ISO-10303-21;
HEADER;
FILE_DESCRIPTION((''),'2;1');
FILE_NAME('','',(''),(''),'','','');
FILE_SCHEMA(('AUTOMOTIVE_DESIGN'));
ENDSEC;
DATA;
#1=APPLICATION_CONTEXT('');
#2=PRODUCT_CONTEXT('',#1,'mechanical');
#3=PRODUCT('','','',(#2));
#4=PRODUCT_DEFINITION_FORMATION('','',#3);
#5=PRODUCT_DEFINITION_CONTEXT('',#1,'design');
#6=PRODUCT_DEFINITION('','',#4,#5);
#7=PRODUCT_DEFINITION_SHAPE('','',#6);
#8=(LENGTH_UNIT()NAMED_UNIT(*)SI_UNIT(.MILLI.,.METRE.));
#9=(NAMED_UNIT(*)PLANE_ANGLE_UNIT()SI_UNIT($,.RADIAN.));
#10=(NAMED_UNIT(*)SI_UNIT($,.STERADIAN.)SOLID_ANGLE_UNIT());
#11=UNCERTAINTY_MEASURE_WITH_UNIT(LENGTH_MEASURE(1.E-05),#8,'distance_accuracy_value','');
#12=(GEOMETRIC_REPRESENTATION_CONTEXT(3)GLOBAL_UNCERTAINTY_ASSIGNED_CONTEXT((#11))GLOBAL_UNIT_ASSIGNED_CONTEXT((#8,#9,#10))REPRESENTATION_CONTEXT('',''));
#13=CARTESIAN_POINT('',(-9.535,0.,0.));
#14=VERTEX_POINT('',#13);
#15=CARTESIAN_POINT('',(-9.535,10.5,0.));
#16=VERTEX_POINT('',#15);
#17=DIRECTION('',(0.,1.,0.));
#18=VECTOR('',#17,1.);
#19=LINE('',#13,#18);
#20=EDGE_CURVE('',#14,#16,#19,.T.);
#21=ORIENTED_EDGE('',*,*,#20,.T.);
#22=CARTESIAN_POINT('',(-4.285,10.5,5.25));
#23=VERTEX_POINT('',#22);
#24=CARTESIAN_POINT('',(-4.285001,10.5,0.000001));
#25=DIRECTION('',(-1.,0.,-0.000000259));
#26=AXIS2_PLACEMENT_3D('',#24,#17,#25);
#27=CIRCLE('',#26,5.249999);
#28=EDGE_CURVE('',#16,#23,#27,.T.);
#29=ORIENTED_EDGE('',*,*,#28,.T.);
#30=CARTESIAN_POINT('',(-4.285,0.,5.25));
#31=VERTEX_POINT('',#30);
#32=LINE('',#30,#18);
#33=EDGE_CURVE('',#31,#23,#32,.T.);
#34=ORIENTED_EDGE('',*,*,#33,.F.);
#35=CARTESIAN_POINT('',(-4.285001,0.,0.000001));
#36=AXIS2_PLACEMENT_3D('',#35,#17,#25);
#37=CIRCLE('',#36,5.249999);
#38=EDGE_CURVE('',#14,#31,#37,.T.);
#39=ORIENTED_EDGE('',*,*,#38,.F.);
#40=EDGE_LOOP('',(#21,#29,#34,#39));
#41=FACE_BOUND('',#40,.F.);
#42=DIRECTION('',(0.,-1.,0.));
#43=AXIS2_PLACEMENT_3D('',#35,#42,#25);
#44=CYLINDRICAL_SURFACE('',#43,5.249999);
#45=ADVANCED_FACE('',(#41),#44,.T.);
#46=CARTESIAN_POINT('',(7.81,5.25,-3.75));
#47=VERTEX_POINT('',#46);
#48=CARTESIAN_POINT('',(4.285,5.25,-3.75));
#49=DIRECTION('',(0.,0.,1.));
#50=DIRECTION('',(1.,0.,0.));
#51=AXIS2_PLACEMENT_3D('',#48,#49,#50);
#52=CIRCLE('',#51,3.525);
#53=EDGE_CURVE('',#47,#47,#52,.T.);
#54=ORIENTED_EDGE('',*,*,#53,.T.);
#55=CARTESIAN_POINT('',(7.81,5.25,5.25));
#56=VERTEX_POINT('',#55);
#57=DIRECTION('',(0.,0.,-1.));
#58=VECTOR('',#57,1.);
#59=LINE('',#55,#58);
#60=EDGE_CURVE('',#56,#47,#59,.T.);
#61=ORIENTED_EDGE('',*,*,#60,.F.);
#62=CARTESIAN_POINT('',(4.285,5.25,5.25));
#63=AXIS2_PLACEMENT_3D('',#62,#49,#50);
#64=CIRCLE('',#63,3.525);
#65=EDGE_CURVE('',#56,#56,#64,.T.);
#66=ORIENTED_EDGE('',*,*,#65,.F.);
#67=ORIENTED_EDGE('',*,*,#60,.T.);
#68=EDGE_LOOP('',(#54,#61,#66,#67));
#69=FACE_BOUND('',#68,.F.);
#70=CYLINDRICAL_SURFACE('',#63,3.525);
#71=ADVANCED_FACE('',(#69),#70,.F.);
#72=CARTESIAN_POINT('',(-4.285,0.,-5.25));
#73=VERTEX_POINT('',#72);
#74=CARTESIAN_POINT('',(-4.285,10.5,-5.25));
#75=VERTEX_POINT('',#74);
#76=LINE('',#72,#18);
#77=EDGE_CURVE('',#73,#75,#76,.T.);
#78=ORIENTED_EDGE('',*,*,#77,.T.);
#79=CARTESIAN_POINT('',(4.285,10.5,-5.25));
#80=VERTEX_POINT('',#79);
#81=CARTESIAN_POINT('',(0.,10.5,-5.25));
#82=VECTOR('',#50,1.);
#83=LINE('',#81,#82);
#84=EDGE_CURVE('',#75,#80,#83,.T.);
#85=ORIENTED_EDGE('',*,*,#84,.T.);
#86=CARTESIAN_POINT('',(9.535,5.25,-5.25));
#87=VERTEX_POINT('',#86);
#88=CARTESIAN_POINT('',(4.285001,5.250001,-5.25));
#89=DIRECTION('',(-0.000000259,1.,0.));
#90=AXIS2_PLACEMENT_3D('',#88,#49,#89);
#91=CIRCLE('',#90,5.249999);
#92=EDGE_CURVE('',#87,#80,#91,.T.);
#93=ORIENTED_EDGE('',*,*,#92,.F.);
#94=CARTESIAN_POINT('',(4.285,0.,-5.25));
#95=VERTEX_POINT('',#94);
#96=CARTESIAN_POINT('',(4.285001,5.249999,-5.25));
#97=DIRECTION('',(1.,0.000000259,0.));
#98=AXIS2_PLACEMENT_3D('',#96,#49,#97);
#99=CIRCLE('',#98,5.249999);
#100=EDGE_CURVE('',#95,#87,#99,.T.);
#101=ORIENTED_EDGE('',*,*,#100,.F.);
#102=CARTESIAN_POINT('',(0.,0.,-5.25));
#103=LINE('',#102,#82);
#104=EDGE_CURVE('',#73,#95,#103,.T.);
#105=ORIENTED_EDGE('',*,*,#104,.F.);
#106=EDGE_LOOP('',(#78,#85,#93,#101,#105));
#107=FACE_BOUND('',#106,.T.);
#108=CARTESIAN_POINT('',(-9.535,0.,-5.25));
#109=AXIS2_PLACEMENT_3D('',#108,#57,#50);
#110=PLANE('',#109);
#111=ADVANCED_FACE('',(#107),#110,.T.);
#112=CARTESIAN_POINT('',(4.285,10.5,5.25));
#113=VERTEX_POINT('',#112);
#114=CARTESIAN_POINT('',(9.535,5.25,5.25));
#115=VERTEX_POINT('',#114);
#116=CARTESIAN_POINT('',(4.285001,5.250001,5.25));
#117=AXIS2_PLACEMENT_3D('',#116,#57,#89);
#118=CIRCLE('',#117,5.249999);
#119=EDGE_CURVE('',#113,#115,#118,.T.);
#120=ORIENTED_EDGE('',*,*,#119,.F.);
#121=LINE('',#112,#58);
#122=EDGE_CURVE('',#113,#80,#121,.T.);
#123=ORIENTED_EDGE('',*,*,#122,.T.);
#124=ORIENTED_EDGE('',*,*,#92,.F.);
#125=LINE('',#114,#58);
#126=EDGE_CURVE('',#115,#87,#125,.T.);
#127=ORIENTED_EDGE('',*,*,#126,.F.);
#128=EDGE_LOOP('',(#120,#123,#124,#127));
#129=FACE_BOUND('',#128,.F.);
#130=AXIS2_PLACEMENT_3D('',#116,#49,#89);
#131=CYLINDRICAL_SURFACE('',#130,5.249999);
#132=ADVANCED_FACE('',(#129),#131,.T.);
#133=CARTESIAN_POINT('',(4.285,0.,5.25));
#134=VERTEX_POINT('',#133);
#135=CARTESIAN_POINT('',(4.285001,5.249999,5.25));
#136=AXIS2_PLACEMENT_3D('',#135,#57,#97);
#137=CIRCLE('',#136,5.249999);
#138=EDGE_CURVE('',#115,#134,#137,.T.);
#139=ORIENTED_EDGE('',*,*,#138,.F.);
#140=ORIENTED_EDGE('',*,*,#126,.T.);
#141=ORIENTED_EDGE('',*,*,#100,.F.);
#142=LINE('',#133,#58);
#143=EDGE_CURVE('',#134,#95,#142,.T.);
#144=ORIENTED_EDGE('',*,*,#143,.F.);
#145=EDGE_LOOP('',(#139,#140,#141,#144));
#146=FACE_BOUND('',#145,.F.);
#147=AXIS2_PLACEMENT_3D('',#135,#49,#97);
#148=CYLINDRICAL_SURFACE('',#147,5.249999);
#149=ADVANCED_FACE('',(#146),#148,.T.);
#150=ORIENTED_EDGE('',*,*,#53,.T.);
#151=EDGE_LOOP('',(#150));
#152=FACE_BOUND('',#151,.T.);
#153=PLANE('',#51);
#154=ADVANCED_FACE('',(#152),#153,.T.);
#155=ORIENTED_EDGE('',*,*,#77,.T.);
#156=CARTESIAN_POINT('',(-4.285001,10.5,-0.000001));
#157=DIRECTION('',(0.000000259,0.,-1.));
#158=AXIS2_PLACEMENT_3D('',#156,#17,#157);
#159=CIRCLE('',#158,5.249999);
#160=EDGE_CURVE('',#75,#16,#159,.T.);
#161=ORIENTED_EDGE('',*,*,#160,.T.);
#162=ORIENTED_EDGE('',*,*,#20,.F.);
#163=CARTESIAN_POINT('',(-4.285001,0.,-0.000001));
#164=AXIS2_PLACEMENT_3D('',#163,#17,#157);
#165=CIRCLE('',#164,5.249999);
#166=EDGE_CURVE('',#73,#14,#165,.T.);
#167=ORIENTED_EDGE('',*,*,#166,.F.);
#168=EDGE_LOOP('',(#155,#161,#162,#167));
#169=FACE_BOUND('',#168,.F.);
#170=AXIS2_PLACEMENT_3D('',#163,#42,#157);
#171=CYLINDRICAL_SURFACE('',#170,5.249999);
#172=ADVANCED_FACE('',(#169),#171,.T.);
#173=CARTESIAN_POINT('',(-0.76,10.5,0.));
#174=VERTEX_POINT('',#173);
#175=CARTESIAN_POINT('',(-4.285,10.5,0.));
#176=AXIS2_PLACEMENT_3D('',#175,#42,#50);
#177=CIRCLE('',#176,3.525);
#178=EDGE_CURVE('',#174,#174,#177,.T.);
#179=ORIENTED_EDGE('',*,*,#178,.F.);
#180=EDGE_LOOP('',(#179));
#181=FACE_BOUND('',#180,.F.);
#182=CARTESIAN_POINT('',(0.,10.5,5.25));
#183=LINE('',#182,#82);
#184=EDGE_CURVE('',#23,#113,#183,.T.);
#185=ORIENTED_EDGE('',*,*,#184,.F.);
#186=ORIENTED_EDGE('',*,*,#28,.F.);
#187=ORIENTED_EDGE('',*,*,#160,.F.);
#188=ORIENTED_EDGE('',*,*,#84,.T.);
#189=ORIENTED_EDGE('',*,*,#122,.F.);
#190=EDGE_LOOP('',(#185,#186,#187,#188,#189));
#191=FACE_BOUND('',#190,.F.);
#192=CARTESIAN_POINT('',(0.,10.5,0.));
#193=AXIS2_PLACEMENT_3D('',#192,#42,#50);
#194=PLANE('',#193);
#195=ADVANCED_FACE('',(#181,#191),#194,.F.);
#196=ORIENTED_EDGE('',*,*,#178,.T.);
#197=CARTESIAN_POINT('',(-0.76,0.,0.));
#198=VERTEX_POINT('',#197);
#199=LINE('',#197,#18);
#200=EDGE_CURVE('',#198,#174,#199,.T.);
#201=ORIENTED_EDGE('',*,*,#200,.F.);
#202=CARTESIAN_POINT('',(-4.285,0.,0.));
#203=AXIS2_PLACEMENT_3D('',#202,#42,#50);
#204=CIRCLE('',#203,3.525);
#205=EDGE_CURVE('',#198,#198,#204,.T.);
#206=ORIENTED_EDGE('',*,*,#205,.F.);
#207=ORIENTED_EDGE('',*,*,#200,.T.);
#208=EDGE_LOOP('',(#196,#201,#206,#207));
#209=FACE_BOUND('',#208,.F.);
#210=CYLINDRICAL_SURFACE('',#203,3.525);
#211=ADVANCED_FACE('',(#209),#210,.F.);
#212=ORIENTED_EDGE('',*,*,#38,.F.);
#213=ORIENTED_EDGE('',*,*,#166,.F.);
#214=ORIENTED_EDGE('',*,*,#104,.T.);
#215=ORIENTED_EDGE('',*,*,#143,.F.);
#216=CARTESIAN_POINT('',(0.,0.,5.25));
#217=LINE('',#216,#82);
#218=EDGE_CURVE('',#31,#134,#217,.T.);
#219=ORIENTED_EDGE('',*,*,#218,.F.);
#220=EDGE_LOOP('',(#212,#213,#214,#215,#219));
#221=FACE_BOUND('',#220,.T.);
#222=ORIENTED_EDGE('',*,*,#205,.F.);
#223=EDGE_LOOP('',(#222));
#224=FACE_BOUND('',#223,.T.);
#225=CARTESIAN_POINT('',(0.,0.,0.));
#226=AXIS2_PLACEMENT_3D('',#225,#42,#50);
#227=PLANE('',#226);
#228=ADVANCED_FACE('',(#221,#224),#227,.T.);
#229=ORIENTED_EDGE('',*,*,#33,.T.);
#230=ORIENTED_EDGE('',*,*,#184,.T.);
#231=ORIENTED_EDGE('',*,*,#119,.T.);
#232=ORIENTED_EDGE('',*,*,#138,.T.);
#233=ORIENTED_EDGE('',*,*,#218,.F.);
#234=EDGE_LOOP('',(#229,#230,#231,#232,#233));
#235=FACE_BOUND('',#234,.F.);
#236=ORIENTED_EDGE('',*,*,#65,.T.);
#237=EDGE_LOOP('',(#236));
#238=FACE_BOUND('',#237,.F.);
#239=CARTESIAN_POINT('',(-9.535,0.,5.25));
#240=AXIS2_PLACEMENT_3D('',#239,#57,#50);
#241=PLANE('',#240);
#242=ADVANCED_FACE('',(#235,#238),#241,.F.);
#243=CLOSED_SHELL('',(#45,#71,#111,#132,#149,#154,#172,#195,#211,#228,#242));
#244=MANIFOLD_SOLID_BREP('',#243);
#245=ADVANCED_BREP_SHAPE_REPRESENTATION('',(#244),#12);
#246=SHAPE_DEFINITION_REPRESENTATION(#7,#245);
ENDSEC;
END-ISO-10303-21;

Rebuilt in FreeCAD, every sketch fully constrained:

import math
import FreeCAD as App
import Part
import Sketcher

doc = App.newDocument("Part")
body = doc.addObject("PartDesign::Body", "Body")

sketch1 = doc.addObject("Sketcher::SketchObject", "Sketch")
body.addObject(sketch1)
sketch1.AttachmentSupport = (doc.XZ_Plane, [""])
sketch1.MapMode = "FlatFace"
sketch1.addGeometry([
    Part.LineSegment(App.Vector(-10, 5, 0), App.Vector(-10, -5, 0)),
    Part.LineSegment(App.Vector(-10, -5, 0), App.Vector(10, -5, 0)),
    Part.LineSegment(App.Vector(10, -5, 0), App.Vector(10, 5, 0)),
    Part.LineSegment(App.Vector(10, 5, 0), App.Vector(-10, 5, 0)),
], False)
sketch1.addConstraint([
    Sketcher.Constraint("Coincident", 0, 2, 1, 1),
    Sketcher.Constraint("Coincident", 1, 2, 2, 1),
    Sketcher.Constraint("Coincident", 2, 2, 3, 1),
    Sketcher.Constraint("Coincident", 3, 2, 0, 1),
    Sketcher.Constraint("Vertical", 0),
    Sketcher.Constraint("Horizontal", 1),
    Sketcher.Constraint("Vertical", 2),
    Sketcher.Constraint("Horizontal", 3),
    Sketcher.Constraint("Symmetric", 0, 2, 2, 2, -1, 1),
    Sketcher.Constraint("DistanceY", 0, 2, 0, 1, 10.5),
    Sketcher.Constraint("DistanceX", 1, 1, 1, 2, 19.07),
])
pad1 = doc.addObject("PartDesign::Pad", "Pad")
body.addObject(pad1)
pad1.Profile = sketch1
pad1.Length = 10.5
pad1.Reversed = True

sketch2 = doc.addObject("Sketcher::SketchObject", "Sketch001")
body.addObject(sketch2)
sketch2.AttachmentSupport = (doc.XZ_Plane, [""])
sketch2.MapMode = "FlatFace"
sketch2.addGeometry([
    Part.ArcOfCircle(Part.Circle(App.Vector(-4.3, 0, 0), App.Vector(0, 0, 1), 5.2), math.radians(180), math.radians(270)),
    Part.LineSegment(App.Vector(-9.5, 0, 0), App.Vector(-9.5, -5.2, 0)),
    Part.LineSegment(App.Vector(-9.5, -5.2, 0), App.Vector(-4.3, -5.2, 0)),
    Part.ArcOfCircle(Part.Circle(App.Vector(-4.3, 0, 0), App.Vector(0, 0, 1), 5.2), math.radians(90), math.radians(180)),
    Part.LineSegment(App.Vector(-4.3, 5.2, 0), App.Vector(-9.5, 5.2, 0)),
    Part.LineSegment(App.Vector(-9.5, 5.2, 0), App.Vector(-9.5, 0, 0)),
    Part.Circle(App.Vector(-4.3, 0, 0), App.Vector(0, 0, 1), 3.5),
], False)
sketch2.addConstraint([
    Sketcher.Constraint("Tangent", 0, 1, 1, 1),
    Sketcher.Constraint("Coincident", 1, 2, 2, 1),
    Sketcher.Constraint("Tangent", 2, 2, 0, 2),
    Sketcher.Constraint("Tangent", 3, 1, 4, 1),
    Sketcher.Constraint("Coincident", 4, 2, 5, 1),
    Sketcher.Constraint("Tangent", 5, 2, 3, 2),
    Sketcher.Constraint("Vertical", 1),
    Sketcher.Constraint("Horizontal", 2),
    Sketcher.Constraint("Horizontal", 4),
    Sketcher.Constraint("Vertical", 5),
    Sketcher.Constraint("Coincident", 3, 3, 0, 3),
    Sketcher.Constraint("Coincident", 6, 3, 0, 3),
    Sketcher.Constraint("Equal", 0, 3),
    Sketcher.Constraint("PointOnObject", 0, 3, -1),
    Sketcher.Constraint("Diameter", 6, 7.05),
    Sketcher.Constraint("Radius", 0, 5.249999),
    Sketcher.Constraint("DistanceX", 0, 3, -1, 1, 4.285001),
])
pocket1 = doc.addObject("PartDesign::Pocket", "Pocket")
body.addObject(pocket1)
pocket1.Profile = sketch2
pocket1.Type = "ThroughAll"

sketch3 = doc.addObject("Sketcher::SketchObject", "Sketch002")
body.addObject(sketch3)
sketch3.AttachmentSupport = (doc.XY_Plane, [""])
sketch3.MapMode = "FlatFace"
sketch3.AttachmentOffset = App.Placement(App.Vector(0, 0, 5.25), App.Rotation())
sketch3.addGeometry(Part.Circle(App.Vector(4.3, 5.2, 0), App.Vector(0, 0, 1), 3.5), False)
sketch3.addConstraint([
    Sketcher.Constraint("Diameter", 0, 7.05),
    Sketcher.Constraint("DistanceY", -1, 1, 0, 3, 5.25),
    Sketcher.Constraint("DistanceX", -1, 1, 0, 3, 4.285),
])
pocket2 = doc.addObject("PartDesign::Pocket", "Pocket001")
body.addObject(pocket2)
pocket2.Profile = sketch3
pocket2.Length = 9

sketch4 = doc.addObject("Sketcher::SketchObject", "Sketch003")
body.addObject(sketch4)
sketch4.AttachmentSupport = (doc.XY_Plane, [""])
sketch4.MapMode = "FlatFace"
sketch4.AttachmentOffset = App.Placement(App.Vector(0, 0, 5.25), App.Rotation())
sketch4.addGeometry([
    Part.ArcOfCircle(Part.Circle(App.Vector(4, 5, 0), App.Vector(0, 0, 1), 5), math.radians(0), math.radians(90)),
    Part.LineSegment(App.Vector(10, 5, 0), App.Vector(10, 10, 0)),
    Part.LineSegment(App.Vector(10, 10, 0), App.Vector(4, 10, 0)),
    Part.ArcOfCircle(Part.Circle(App.Vector(4, 5, 0), App.Vector(0, 0, 1), 5), math.radians(-90), math.radians(0)),
    Part.LineSegment(App.Vector(4, 0, 0), App.Vector(10, 0, 0)),
    Part.LineSegment(App.Vector(10, 0, 0), App.Vector(10, 5, 0)),
], False)
sketch4.addConstraint([
    Sketcher.Constraint("Tangent", 0, 1, 1, 1),
    Sketcher.Constraint("Coincident", 1, 2, 2, 1),
    Sketcher.Constraint("Tangent", 2, 2, 0, 2),
    Sketcher.Constraint("Tangent", 3, 1, 4, 1),
    Sketcher.Constraint("Coincident", 4, 2, 5, 1),
    Sketcher.Constraint("Tangent", 5, 2, 3, 2),
    Sketcher.Constraint("Vertical", 1),
    Sketcher.Constraint("Horizontal", 2),
    Sketcher.Constraint("Horizontal", 4),
    Sketcher.Constraint("Vertical", 5),
    Sketcher.Constraint("Coincident", 3, 3, 0, 3),
    Sketcher.Constraint("Equal", 0, 3),
    Sketcher.Constraint("PointOnObject", 3, 1, -1),
    Sketcher.Constraint("Radius", 0, 5.249999),
    Sketcher.Constraint("DistanceX", -1, 1, 0, 3, 4.285001),
])
pocket3 = doc.addObject("PartDesign::Pocket", "Pocket002")
body.addObject(pocket3)
pocket3.Profile = sketch4
pocket3.Type = "ThroughAll"

doc.recompute()
